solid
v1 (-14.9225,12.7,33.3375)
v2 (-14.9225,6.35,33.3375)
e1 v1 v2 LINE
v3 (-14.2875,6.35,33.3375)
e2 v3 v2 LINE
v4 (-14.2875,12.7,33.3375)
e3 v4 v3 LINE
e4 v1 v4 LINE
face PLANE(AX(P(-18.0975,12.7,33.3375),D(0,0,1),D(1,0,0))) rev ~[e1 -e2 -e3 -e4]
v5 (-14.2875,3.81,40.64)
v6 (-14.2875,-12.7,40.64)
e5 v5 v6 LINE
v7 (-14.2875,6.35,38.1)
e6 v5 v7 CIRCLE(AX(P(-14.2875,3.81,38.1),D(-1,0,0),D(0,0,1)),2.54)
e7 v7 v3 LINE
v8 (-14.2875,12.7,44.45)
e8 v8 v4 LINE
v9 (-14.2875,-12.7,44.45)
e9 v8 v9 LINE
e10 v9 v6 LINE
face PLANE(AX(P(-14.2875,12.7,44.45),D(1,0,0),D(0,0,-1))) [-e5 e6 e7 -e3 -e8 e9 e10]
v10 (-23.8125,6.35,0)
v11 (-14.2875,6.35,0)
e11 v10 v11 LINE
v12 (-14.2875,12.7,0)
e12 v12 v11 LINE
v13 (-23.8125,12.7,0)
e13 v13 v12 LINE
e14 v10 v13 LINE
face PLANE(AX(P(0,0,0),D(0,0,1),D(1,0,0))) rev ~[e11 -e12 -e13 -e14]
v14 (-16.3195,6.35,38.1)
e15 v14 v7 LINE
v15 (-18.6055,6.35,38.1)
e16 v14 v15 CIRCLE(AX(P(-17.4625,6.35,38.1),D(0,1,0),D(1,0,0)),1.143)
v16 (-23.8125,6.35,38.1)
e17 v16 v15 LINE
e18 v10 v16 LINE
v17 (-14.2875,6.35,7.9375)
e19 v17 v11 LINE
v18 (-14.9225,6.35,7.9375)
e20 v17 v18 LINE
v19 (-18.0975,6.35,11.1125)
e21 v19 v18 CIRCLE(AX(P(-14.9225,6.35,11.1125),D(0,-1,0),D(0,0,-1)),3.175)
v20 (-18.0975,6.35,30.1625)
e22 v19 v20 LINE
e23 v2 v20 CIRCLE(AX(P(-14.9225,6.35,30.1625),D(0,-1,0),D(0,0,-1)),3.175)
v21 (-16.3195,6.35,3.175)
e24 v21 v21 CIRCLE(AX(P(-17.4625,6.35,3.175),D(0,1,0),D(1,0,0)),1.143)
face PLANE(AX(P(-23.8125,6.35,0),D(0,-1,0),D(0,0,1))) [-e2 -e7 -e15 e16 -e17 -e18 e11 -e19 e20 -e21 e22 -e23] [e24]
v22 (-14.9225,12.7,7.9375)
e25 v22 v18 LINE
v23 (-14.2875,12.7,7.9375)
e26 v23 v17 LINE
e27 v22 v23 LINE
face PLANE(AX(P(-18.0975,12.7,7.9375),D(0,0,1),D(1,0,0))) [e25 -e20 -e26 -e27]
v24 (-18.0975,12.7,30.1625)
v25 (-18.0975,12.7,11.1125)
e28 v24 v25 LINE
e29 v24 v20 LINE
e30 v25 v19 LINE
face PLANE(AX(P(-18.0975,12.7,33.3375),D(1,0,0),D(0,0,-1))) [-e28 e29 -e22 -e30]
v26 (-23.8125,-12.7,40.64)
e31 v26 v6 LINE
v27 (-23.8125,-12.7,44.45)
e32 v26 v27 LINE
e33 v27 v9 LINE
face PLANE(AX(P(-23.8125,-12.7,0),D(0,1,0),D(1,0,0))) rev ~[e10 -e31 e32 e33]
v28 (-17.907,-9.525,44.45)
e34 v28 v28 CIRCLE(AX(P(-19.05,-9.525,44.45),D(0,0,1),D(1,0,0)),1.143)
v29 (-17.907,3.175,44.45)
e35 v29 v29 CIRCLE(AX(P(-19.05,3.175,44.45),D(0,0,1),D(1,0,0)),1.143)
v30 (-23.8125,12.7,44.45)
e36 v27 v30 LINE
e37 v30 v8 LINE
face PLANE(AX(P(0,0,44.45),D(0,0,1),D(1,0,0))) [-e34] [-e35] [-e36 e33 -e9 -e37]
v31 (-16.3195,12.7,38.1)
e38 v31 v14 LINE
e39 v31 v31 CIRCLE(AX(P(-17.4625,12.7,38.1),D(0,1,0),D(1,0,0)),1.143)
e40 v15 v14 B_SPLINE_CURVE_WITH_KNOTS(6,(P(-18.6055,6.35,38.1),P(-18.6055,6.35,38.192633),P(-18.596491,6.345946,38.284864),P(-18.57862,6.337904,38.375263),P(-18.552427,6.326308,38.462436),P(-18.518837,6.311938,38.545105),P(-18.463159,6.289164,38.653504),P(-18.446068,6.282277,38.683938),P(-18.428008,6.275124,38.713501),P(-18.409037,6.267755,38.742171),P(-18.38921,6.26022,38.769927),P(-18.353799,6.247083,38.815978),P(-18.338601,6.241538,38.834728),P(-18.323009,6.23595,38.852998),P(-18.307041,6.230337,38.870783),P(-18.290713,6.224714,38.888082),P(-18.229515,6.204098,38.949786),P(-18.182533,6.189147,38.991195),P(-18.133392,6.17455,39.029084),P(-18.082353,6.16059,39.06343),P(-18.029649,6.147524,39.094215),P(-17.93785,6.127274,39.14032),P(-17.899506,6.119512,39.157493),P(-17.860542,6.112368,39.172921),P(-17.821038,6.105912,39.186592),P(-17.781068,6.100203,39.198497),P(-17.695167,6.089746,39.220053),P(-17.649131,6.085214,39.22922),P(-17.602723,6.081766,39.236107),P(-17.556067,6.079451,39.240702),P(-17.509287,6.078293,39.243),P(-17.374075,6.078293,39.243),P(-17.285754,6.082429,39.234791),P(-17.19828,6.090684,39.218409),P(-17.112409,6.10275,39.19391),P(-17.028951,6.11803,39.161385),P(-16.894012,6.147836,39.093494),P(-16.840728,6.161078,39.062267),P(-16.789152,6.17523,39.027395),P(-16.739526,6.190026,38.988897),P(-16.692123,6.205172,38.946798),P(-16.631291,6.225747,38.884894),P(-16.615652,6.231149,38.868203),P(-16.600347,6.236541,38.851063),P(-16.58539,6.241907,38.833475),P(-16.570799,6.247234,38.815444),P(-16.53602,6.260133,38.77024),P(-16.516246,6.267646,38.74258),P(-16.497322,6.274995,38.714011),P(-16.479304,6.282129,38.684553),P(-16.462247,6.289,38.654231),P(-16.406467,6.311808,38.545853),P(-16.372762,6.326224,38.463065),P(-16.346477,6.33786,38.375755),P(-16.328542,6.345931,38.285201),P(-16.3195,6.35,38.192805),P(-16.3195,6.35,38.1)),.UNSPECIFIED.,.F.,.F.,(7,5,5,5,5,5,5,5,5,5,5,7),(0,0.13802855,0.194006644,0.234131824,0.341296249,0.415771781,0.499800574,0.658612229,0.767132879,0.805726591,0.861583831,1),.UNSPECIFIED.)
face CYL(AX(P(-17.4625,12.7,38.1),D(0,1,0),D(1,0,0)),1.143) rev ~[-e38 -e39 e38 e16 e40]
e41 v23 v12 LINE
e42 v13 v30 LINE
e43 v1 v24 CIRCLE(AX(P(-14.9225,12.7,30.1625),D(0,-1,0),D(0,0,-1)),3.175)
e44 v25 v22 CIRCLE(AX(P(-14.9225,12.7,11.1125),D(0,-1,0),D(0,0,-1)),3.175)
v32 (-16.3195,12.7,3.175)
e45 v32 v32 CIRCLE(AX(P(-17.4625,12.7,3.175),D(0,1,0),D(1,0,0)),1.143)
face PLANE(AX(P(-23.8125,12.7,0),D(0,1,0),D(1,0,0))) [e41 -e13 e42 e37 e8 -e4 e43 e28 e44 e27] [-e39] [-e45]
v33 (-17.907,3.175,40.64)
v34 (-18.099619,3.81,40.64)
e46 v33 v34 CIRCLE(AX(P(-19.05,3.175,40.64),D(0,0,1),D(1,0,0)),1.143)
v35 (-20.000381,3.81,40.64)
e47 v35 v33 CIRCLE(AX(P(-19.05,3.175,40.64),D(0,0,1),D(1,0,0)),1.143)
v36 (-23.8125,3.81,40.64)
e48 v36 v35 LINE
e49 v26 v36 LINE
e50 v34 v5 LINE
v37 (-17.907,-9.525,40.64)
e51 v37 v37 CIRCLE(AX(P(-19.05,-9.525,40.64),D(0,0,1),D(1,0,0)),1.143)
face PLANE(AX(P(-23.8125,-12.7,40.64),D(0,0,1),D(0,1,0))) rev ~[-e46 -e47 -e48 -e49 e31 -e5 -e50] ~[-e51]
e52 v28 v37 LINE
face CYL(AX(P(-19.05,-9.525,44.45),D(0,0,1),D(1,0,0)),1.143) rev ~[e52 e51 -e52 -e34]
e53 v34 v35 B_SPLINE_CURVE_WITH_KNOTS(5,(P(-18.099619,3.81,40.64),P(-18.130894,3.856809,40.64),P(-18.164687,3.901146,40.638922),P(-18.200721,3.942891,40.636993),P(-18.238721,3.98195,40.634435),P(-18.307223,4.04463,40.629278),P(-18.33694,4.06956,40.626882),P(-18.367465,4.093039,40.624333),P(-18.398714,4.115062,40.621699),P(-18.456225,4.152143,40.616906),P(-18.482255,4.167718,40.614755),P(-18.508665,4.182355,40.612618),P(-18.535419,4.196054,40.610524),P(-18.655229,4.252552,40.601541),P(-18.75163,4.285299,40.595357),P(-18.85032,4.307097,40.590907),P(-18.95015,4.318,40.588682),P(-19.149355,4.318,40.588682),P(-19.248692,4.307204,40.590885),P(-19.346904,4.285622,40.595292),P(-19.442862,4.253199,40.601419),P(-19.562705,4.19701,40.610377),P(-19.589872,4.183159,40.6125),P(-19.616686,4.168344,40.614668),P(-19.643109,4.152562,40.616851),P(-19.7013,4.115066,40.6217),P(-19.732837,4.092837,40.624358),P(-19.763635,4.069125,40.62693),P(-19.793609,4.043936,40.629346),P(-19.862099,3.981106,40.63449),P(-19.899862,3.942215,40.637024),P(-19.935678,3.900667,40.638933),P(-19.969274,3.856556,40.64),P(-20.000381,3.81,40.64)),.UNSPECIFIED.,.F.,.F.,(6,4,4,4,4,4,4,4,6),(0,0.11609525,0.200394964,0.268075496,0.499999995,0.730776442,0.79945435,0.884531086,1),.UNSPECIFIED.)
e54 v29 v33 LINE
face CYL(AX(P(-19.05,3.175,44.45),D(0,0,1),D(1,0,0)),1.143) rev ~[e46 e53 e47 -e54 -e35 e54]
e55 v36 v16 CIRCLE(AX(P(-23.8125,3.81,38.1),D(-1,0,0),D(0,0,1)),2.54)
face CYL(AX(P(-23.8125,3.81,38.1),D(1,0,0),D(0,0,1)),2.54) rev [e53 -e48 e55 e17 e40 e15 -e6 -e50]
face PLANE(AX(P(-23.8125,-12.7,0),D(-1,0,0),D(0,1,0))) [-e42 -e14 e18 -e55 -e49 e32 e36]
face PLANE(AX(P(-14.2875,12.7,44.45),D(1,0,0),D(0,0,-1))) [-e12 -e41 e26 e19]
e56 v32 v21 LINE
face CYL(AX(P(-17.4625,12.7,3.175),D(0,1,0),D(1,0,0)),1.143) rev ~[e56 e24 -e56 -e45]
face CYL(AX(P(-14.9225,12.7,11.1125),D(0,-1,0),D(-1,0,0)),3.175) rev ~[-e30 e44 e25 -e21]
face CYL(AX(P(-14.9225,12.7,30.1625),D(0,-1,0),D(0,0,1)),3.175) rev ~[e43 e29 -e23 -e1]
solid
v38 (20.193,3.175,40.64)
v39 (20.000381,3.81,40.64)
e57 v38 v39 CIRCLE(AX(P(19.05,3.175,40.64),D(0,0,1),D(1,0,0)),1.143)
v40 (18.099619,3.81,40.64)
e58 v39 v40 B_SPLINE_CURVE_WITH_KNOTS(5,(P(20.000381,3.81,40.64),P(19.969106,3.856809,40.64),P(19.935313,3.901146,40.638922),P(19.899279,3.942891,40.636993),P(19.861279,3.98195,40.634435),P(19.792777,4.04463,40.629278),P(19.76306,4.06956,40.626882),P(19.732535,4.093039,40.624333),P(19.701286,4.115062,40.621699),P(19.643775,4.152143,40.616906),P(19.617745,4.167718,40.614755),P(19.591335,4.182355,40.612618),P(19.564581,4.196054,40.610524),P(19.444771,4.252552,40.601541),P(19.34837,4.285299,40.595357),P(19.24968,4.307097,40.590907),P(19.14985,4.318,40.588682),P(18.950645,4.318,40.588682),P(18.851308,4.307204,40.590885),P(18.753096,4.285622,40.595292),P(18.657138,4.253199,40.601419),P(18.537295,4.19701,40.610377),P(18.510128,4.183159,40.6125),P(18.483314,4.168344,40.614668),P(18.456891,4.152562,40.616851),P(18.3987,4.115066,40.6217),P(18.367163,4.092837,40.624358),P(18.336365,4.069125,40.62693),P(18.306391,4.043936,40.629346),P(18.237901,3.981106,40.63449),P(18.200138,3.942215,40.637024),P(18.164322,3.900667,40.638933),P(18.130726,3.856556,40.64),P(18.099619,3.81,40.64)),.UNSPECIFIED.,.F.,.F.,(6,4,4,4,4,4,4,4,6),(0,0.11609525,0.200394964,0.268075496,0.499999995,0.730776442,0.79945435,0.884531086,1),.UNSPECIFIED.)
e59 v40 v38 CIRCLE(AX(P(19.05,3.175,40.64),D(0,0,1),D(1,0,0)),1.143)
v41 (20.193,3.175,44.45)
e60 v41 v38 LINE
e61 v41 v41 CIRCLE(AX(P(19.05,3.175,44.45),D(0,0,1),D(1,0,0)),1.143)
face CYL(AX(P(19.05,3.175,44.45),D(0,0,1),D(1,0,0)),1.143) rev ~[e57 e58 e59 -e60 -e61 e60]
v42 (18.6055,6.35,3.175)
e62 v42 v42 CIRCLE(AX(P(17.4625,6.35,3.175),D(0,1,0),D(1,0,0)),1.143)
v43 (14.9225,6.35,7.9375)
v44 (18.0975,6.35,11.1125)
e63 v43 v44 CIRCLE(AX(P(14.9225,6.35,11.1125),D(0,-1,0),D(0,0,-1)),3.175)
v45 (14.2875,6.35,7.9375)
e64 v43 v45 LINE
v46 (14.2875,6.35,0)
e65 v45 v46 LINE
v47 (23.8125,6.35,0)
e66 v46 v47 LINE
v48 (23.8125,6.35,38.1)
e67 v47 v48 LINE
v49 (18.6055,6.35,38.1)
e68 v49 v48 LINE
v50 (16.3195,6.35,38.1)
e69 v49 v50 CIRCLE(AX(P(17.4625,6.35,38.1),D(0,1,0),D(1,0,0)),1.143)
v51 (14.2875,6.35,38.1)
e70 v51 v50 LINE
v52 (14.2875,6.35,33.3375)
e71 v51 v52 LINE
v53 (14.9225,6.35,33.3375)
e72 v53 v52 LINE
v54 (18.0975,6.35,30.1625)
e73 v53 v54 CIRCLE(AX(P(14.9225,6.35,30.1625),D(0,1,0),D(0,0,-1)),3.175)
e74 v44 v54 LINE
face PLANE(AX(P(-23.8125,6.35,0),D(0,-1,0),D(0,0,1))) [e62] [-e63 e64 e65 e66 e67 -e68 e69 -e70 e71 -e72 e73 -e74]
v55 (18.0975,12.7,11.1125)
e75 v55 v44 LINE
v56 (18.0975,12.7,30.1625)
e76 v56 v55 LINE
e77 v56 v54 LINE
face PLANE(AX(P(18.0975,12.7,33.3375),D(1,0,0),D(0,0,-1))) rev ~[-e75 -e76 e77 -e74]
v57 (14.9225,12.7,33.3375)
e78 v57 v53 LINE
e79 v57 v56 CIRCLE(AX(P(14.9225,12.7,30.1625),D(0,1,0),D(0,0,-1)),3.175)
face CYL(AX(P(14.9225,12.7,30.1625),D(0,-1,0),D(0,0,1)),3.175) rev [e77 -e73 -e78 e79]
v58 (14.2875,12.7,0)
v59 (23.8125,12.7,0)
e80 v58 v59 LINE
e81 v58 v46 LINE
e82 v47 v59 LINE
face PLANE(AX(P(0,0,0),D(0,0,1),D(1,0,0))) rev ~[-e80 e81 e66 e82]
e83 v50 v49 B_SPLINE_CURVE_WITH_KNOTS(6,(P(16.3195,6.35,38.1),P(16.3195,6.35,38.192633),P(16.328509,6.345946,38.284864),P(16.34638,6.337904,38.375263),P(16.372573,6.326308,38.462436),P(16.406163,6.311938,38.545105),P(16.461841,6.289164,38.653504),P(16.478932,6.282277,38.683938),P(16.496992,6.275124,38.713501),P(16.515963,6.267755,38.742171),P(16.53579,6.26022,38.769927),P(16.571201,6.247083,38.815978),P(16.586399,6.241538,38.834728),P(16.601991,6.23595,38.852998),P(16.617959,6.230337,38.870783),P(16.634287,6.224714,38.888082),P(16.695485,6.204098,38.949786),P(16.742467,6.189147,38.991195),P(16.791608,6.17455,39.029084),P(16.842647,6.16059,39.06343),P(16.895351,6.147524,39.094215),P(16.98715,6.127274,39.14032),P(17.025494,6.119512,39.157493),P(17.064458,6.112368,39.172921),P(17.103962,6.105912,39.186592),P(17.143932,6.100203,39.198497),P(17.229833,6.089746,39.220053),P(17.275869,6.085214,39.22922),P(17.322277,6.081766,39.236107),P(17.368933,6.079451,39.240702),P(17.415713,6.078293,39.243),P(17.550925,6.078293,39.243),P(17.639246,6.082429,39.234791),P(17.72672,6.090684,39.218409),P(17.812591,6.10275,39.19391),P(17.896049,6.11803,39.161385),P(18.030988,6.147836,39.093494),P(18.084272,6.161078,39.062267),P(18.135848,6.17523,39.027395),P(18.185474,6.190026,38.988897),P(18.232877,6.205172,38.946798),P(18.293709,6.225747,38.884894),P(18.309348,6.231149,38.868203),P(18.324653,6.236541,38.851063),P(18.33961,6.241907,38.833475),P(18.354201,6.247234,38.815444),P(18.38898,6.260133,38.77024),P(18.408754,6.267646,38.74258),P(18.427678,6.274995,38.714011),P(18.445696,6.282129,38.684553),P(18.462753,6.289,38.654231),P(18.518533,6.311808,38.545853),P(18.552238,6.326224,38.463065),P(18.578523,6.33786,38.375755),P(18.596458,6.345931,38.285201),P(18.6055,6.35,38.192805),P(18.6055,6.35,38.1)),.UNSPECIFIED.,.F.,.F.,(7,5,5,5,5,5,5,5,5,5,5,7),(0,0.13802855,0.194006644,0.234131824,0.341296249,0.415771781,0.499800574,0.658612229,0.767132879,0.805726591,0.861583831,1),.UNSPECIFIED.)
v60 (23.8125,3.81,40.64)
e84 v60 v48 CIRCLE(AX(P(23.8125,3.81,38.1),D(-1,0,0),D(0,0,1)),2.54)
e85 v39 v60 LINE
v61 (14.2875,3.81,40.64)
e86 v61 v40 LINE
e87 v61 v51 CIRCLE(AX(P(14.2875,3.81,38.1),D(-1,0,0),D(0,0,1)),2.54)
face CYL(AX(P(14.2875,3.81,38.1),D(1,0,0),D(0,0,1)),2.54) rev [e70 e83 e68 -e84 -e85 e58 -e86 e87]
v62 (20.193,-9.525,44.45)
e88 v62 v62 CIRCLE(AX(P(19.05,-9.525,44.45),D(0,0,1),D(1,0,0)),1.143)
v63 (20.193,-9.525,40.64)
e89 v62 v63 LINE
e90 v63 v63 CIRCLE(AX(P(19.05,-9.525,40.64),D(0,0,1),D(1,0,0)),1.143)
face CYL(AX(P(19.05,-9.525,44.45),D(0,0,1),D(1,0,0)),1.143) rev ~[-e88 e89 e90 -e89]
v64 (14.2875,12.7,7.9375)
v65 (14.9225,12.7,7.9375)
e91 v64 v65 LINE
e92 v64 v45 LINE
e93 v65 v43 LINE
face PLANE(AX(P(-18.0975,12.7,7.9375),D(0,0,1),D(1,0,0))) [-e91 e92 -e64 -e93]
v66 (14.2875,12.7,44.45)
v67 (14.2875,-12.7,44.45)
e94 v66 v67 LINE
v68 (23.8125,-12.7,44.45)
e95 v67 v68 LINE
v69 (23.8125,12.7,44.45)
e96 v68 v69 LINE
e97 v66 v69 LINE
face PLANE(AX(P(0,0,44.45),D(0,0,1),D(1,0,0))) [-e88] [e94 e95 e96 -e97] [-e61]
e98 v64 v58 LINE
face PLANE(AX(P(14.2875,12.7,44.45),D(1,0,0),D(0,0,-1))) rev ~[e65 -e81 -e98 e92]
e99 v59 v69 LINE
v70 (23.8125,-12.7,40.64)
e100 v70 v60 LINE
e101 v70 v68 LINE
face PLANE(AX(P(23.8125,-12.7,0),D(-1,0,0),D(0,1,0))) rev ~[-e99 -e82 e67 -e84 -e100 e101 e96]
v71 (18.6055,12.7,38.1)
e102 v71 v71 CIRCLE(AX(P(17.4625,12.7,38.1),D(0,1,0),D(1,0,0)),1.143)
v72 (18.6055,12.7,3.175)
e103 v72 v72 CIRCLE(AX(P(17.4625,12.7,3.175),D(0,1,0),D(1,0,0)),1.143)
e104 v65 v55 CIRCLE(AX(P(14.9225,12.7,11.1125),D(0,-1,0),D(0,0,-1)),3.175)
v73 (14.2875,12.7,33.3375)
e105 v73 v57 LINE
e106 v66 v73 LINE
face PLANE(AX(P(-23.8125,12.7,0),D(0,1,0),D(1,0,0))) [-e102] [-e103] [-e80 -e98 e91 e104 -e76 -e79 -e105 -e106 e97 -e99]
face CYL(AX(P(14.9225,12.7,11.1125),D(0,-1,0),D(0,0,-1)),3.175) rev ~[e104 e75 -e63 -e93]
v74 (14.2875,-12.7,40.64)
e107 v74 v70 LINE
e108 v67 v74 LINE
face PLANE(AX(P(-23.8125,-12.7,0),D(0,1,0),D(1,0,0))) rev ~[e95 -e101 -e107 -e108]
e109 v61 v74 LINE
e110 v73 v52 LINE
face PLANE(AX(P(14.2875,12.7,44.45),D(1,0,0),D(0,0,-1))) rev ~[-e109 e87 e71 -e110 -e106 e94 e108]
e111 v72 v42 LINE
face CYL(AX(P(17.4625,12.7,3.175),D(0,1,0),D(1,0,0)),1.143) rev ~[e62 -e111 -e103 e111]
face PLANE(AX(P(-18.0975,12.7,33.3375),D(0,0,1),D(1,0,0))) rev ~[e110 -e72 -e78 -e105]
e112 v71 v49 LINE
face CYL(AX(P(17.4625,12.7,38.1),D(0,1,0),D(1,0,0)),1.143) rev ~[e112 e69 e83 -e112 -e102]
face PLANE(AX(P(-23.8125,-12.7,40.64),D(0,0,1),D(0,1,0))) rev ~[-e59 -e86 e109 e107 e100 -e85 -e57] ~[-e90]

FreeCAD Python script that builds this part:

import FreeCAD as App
import Part
import Sketcher
from FreeCAD import Vector
Q = App.Units.Quantity


def edges_at(feature, points):
    """Names of the edges that pass closest to the given points."""
    edges = feature.Shape.Edges
    near = lambda p: min(range(len(edges)), key=lambda i: edges[i].distToShape(Part.Vertex(*p))[0])
    return sorted({f"Edge{near(p) + 1}" for p in points})


def add_polygon(sketch, points):
    """Adds a closed chain of lines whose ends are joined by coincident constraints."""
    first, n = sketch.GeometryCount, len(points)
    for a, b in zip(points, points[1:] + points[:1]):
        sketch.addGeometry(Part.LineSegment(App.Vector(*a, 0), App.Vector(*b, 0)), False)
    for i in range(n):
        sketch.addConstraint(Sketcher.Constraint("Coincident", first + i, 2, first + (i + 1) % n, 1))

doc = App.newDocument("Part")
body = doc.addObject("PartDesign::Body", "Body")
body.AllowCompound = True

# Sketch on XY plane
sketch1 = body.newObject("Sketcher::SketchObject", "Sketch")
sketch1.AttachmentSupport = (doc.getObject("XY_Plane"), [""])
sketch1.MapMode = "FlatFace"
add_polygon(sketch1, [(-24, 13), (-24, -13), (24, -13), (24, 13)])  # lines 0-3
sketch1.addConstraint([
    Sketcher.Constraint("Vertical", 0),
    Sketcher.Constraint("Horizontal", 1),
    Sketcher.Constraint("Vertical", 2),
    Sketcher.Constraint("Horizontal", 3),
    Sketcher.Constraint("Symmetric", 0, 2, 2, 2, -1, 1),
    Sketcher.Constraint("DistanceY", 0, 2, 0, 1, Q("1 in")),
    Sketcher.Constraint("DistanceX", 1, 1, 1, 2, Q("1.875 in")),
])
pad1 = body.newObject("PartDesign::Pad", "Pad")
pad1.Profile = sketch1
pad1.Length = Q("1.75 in")

# Sketch on XZ plane
sketch2 = body.newObject("Sketcher::SketchObject", "Sketch001")
sketch2.AttachmentSupport = (doc.getObject("XZ_Plane"), [""])
sketch2.MapMode = "FlatFace"
sketch2.AttachmentOffset = App.Placement(Vector(0, 0, -0.5 * 25.4), App.Rotation())
add_polygon(sketch2, [(-14, 0), (-14, 44), (14, 44), (14, 0)])  # lines 0-3
sketch2.addConstraint([
    Sketcher.Constraint("Vertical", 0),
    Sketcher.Constraint("Horizontal", 1),
    Sketcher.Constraint("Vertical", 2),
    Sketcher.Constraint("Horizontal", 3),
    Sketcher.Constraint("Symmetric", 2, 2, 3, 2, -1, 1),
    Sketcher.Constraint("DistanceY", 0, 1, 0, 2, Q("1.75 in")),
    Sketcher.Constraint("DistanceX", 1, 1, 1, 2, Q("1.125 in")),
])
pocket1 = body.newObject("PartDesign::Pocket", "Pocket")
pocket1.Profile = sketch2
pocket1.Type = "ThroughAll"
pocket1.Reversed = True

# Sketch on YZ plane
sketch3 = body.newObject("Sketcher::SketchObject", "Sketch002")
sketch3.AttachmentSupport = (doc.getObject("YZ_Plane"), [""])
sketch3.MapMode = "FlatFace"
sketch3.AttachmentOffset = App.Placement(Vector(0, 0, -0.9375 * 25.4), App.Rotation())
add_polygon(sketch3, [(6, 0), (-13, 0), (-13, 41), (6, 41)])  # lines 0-3
sketch3.addConstraint([
    Sketcher.Constraint("Horizontal", 0),
    Sketcher.Constraint("Vertical", 1),
    Sketcher.Constraint("Horizontal", 2),
    Sketcher.Constraint("Vertical", 3),
    Sketcher.Constraint("PointOnObject", 0, 2, -1),
    Sketcher.Constraint("DistanceY", 1, 1, 1, 2, Q("1.6 in")),
    Sketcher.Constraint("DistanceX", 0, 2, 0, 1, Q("0.75 in")),
    Sketcher.Constraint("DistanceX", 0, 2, -1, 1, Q("0.5 in")),
])
pocket2 = body.newObject("PartDesign::Pocket", "Pocket001")
pocket2.Profile = sketch3
pocket2.Type = "ThroughAll"
pocket2.Reversed = True
doc.recompute()

fillet = body.newObject("PartDesign::Fillet", "Fillet")
fillet.Base = (pocket2, edges_at(pocket2, [(19.05, 6.35, 40.64)]))
fillet.Radius = Q("0.1 in")
doc.recompute()

fillet2 = body.newObject("PartDesign::Fillet", "Fillet001")
fillet2.Base = (fillet, edges_at(fillet, [(-19.05, 6.35, 40.64)]))
fillet2.Radius = Q("0.1 in")

# Sketch on XY plane
sketch4 = body.newObject("Sketcher::SketchObject", "Sketch003")
sketch4.AttachmentSupport = (doc.getObject("XY_Plane"), [""])
sketch4.MapMode = "FlatFace"
sketch4.AttachmentOffset = App.Placement(Vector(0, 0, 1.75 * 25.4), App.Rotation())
sketch4.addGeometry([
    Part.Circle(Vector(-19.1, -9.5, 0), Vector(0, 0, 1), 1.1),
    Part.Circle(Vector(-19.1, 3.2, 0), Vector(0, 0, 1), 1.1),
], False)
sketch4.addConstraint([
    Sketcher.Constraint("Equal", 0, 1),
    Sketcher.Constraint("Vertical", 0, 3, 1, 3),
    Sketcher.Constraint("Diameter", 0, Q("0.09 in")),
    Sketcher.Constraint("DistanceY", 0, 3, 1, 3, Q("0.5 in")),
    Sketcher.Constraint("DistanceX", 0, 3, -1, 1, Q("0.75 in")),
    Sketcher.Constraint("DistanceY", 0, 3, -1, 1, Q("0.375 in")),
])
pocket3 = body.newObject("PartDesign::Pocket", "Pocket002")
pocket3.Profile = sketch4
pocket3.Type = "ThroughAll"

# Sketch on XY plane
sketch5 = body.newObject("Sketcher::SketchObject", "Sketch004")
sketch5.AttachmentSupport = (doc.getObject("XY_Plane"), [""])
sketch5.MapMode = "FlatFace"
sketch5.AttachmentOffset = App.Placement(Vector(0, 0, 1.75 * 25.4), App.Rotation())
sketch5.addGeometry([
    Part.Circle(Vector(19.1, -9.5, 0), Vector(0, 0, 1), 1.1),
    Part.Circle(Vector(19.1, 3.2, 0), Vector(0, 0, 1), 1.1),
], False)
sketch5.addConstraint([
    Sketcher.Constraint("Equal", 0, 1),
    Sketcher.Constraint("Vertical", 0, 3, 1, 3),
    Sketcher.Constraint("Diameter", 0, Q("0.09 in")),
    Sketcher.Constraint("DistanceY", 0, 3, 1, 3, Q("0.5 in")),
    Sketcher.Constraint("DistanceX", -1, 1, 0, 3, Q("0.75 in")),
    Sketcher.Constraint("DistanceY", 0, 3, -1, 1, Q("0.375 in")),
])
pocket4 = body.newObject("PartDesign::Pocket", "Pocket003")
pocket4.Profile = sketch5
pocket4.Type = "ThroughAll"

# Sketch on XZ plane
sketch6 = body.newObject("Sketcher::SketchObject", "Sketch005")
sketch6.AttachmentSupport = (doc.getObject("XZ_Plane"), [""])
sketch6.MapMode = "FlatFace"
sketch6.AttachmentOffset = App.Placement(Vector(0, 0, -0.5 * 25.4), App.Rotation())
sketch6.addGeometry([
    Part.Circle(Vector(-17.5, 38.1, 0), Vector(0, 0, 1), 1.1),
    Part.Circle(Vector(17.5, 38.1, 0), Vector(0, 0, 1), 1.1),
    Part.Circle(Vector(-17.5, 3.2, 0), Vector(0, 0, 1), 1.1),
    Part.Circle(Vector(17.5, 3.2, 0), Vector(0, 0, 1), 1.1),
], False)
sketch6.addConstraint([
    Sketcher.Constraint("Equal", 0, 1),
    Sketcher.Constraint("Equal", 1, 2),
    Sketcher.Constraint("Equal", 2, 3),
    Sketcher.Constraint("Symmetric", 0, 3, 1, 3, -2),
    Sketcher.Constraint("Symmetric", 2, 3, 3, 3, -2),
    Sketcher.Constraint("Vertical", 0, 3, 2, 3),
    Sketcher.Constraint("Diameter", 0, Q("0.09 in")),
    Sketcher.Constraint("DistanceY", -1, 1, 0, 3, Q("1.5 in")),
    Sketcher.Constraint("DistanceX", 0, 3, -1, 1, Q("0.6875 in")),
    Sketcher.Constraint("DistanceY", -1, 1, 2, 3, Q("0.125 in")),
])
pocket5 = body.newObject("PartDesign::Pocket", "Pocket004")
pocket5.Profile = sketch6
pocket5.Length = Q("0.4 in")
pocket5.Reversed = True

# Sketch on XZ plane
sketch7 = body.newObject("Sketcher::SketchObject", "Sketch006")
sketch7.AttachmentSupport = (doc.getObject("XZ_Plane"), [""])
sketch7.MapMode = "FlatFace"
sketch7.AttachmentOffset = App.Placement(Vector(0, 0, -0.5 * 25.4), App.Rotation())
add_polygon(sketch7, [(-18, 8), (-18, 33), (18, 33), (18, 8)])  # lines 0-3
sketch7.addConstraint([
    Sketcher.Constraint("Vertical", 0),
    Sketcher.Constraint("Horizontal", 1),
    Sketcher.Constraint("Vertical", 2),
    Sketcher.Constraint("Horizontal", 3),
    Sketcher.Constraint("DistanceY", 0, 1, 0, 2, Q("1 in")),
    Sketcher.Constraint("DistanceX", 1, 1, 1, 2, Q("1.425 in")),
    Sketcher.Constraint("DistanceY", -1, 1, 0, 2, Q("1.3125 in")),
    Sketcher.Constraint("DistanceX", 0, 2, -1, 1, Q("0.7125 in")),
])
pocket6 = body.newObject("PartDesign::Pocket", "Pocket005")
pocket6.Profile = sketch7
pocket6.Type = "ThroughAll"
pocket6.Reversed = True
doc.recompute()

fillet3 = body.newObject("PartDesign::Fillet", "Fillet002")
fillet3.Base = (pocket6, edges_at(pocket6, [(-18.098, 9.525, 33.337), (-18.098, 9.525, 7.938)]))
fillet3.Radius = Q("0.125 in")
doc.recompute()

fillet4 = body.newObject("PartDesign::Fillet", "Fillet003")
fillet4.Base = (fillet3, edges_at(fillet3, [(18.098, 9.525, 7.938), (18.098, 9.525, 33.337)]))
fillet4.Radius = Q("0.125 in")

doc.recompute()
